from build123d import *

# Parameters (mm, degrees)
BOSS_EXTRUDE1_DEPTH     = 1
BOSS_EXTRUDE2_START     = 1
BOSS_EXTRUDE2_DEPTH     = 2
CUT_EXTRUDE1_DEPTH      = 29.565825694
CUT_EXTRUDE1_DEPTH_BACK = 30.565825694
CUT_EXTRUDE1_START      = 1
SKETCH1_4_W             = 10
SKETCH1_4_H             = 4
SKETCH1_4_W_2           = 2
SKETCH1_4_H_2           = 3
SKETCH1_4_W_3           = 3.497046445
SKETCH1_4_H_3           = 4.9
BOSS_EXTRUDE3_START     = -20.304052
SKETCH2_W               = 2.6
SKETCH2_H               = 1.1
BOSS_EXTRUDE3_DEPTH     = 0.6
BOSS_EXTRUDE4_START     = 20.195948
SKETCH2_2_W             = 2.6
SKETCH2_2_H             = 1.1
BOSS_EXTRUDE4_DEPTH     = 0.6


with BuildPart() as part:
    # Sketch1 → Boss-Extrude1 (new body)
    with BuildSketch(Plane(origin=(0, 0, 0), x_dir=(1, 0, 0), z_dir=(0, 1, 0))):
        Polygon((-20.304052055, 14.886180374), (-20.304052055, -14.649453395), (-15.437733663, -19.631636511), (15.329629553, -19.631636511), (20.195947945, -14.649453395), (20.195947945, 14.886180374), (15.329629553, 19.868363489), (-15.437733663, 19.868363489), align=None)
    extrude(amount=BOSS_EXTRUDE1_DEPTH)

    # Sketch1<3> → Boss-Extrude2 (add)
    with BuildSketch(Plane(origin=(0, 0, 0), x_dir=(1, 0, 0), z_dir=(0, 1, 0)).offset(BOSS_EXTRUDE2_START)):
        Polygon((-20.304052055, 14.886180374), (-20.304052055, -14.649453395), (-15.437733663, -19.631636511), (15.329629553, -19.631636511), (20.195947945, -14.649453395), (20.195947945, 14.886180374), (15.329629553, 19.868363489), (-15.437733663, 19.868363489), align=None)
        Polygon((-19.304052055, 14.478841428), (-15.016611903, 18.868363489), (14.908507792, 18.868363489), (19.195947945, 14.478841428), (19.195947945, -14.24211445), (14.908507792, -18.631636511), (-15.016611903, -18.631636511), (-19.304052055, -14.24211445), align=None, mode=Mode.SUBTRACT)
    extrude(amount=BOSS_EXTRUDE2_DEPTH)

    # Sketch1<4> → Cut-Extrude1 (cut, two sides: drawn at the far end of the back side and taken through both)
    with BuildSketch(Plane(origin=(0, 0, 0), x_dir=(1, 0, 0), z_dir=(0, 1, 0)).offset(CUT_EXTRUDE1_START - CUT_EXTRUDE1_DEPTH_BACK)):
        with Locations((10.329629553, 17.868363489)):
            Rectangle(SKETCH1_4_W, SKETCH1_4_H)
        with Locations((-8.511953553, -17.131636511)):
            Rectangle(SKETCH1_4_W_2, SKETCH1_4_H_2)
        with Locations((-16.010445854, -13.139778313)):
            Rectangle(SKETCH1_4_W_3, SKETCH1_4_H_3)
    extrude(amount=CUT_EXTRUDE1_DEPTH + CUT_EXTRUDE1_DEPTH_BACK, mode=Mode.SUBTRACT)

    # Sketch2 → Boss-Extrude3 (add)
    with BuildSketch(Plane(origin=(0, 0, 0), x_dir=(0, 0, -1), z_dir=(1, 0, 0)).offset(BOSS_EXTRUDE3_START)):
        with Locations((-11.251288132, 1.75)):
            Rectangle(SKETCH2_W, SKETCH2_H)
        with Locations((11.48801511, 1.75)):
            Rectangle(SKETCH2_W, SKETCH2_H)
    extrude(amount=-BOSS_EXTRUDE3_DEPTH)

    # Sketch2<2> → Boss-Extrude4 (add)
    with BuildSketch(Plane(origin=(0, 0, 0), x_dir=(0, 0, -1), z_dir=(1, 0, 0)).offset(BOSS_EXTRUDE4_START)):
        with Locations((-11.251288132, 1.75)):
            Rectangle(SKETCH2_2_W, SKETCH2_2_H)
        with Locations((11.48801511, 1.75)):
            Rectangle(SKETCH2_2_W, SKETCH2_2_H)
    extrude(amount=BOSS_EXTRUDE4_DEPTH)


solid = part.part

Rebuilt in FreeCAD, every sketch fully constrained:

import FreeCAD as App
import Part
import Sketcher
from FreeCAD import Vector

doc = App.newDocument("Part")
body = doc.addObject("PartDesign::Body", "Body")

sketch1 = doc.addObject("Sketcher::SketchObject", "Sketch")
body.addObject(sketch1)
sketch1.AttachmentSupport = (doc.XZ_Plane, [""])
sketch1.MapMode = "FlatFace"
sketch1.addGeometry(Part.LineSegment(Vector(-20, -15, 0), Vector(-20, 15, 0)), False)
sketch1.addGeometry(Part.LineSegment(Vector(-20, 15, 0), Vector(-15, 20, 0)), False)
sketch1.addGeometry(Part.LineSegment(Vector(-15, 20, 0), Vector(15, 20, 0)), False)
sketch1.addGeometry(Part.LineSegment(Vector(15, 20, 0), Vector(20, 15, 0)), False)
sketch1.addGeometry(Part.LineSegment(Vector(20, 15, 0), Vector(20, -15, 0)), False)
sketch1.addGeometry(Part.LineSegment(Vector(20, -15, 0), Vector(15, -20, 0)), False)
sketch1.addGeometry(Part.LineSegment(Vector(15, -20, 0), Vector(-15, -20, 0)), False)
sketch1.addGeometry(Part.LineSegment(Vector(-15, -20, 0), Vector(-20, -15, 0)), False)
sketch1.addConstraint(Sketcher.Constraint("Coincident", 0, 2, 1, 1))
sketch1.addConstraint(Sketcher.Constraint("Coincident", 1, 2, 2, 1))
sketch1.addConstraint(Sketcher.Constraint("Coincident", 2, 2, 3, 1))
sketch1.addConstraint(Sketcher.Constraint("Coincident", 3, 2, 4, 1))
sketch1.addConstraint(Sketcher.Constraint("Coincident", 4, 2, 5, 1))
sketch1.addConstraint(Sketcher.Constraint("Coincident", 5, 2, 6, 1))
sketch1.addConstraint(Sketcher.Constraint("Coincident", 6, 2, 7, 1))
sketch1.addConstraint(Sketcher.Constraint("Coincident", 7, 2, 0, 1))
sketch1.addConstraint(Sketcher.Constraint("Vertical", 0))
sketch1.addConstraint(Sketcher.Constraint("Horizontal", 2))
sketch1.addConstraint(Sketcher.Constraint("Vertical", 4))
sketch1.addConstraint(Sketcher.Constraint("Horizontal", 6))
sketch1.addConstraint(Sketcher.Constraint("Parallel", 1, 5))
sketch1.addConstraint(Sketcher.Constraint("Parallel", 3, 7))
sketch1.addConstraint(Sketcher.Constraint("Horizontal", 0, 2, 3, 2))
sketch1.addConstraint(Sketcher.Constraint("Horizontal", 4, 2, 7, 2))
sketch1.addConstraint(Sketcher.Constraint("Vertical", 2, 2, 5, 2))
sketch1.addConstraint(Sketcher.Constraint("Vertical", 1, 2, 6, 2))
sketch1.addConstraint(Sketcher.Constraint("DistanceX", 0, 2, 3, 2, 40.5))
sketch1.addConstraint(Sketcher.Constraint("DistanceY", 5, 2, 2, 2, 39.5))
sketch1.addConstraint(Sketcher.Constraint("DistanceX", 2, 1, 2, 2, 30.767363))
sketch1.addConstraint(Sketcher.Constraint("DistanceY", 0, 1, 0, 2, 29.535634))
sketch1.addConstraint(Sketcher.Constraint("DistanceX", -1, 1, 2, 2, 15.32963))
sketch1.addConstraint(Sketcher.Constraint("DistanceY", 4, 2, -1, 1, 14.88618))
pad1 = doc.addObject("PartDesign::Pad", "Pad")
body.addObject(pad1)
pad1.Profile = sketch1
pad1.Length = 1
pad1.Reversed = True

sketch2 = doc.addObject("Sketcher::SketchObject", "Sketch001")
body.addObject(sketch2)
sketch2.AttachmentSupport = (doc.XZ_Plane, [""])
sketch2.MapMode = "FlatFace"
sketch2.AttachmentOffset = App.Placement(Vector(0, 0, -1), App.Rotation())
sketch2.addGeometry(Part.LineSegment(Vector(-20, -15, 0), Vector(-20, 15, 0)), False)
sketch2.addGeometry(Part.LineSegment(Vector(-20, 15, 0), Vector(-15, 20, 0)), False)
sketch2.addGeometry(Part.LineSegment(Vector(-15, 20, 0), Vector(15, 20, 0)), False)
sketch2.addGeometry(Part.LineSegment(Vector(15, 20, 0), Vector(20, 15, 0)), False)
sketch2.addGeometry(Part.LineSegment(Vector(20, 15, 0), Vector(20, -15, 0)), False)
sketch2.addGeometry(Part.LineSegment(Vector(20, -15, 0), Vector(15, -20, 0)), False)
sketch2.addGeometry(Part.LineSegment(Vector(15, -20, 0), Vector(-15, -20, 0)), False)
sketch2.addGeometry(Part.LineSegment(Vector(-15, -20, 0), Vector(-20, -15, 0)), False)
sketch2.addGeometry(Part.LineSegment(Vector(-19, 14, 0), Vector(-19, -14, 0)), False)
sketch2.addGeometry(Part.LineSegment(Vector(-19, -14, 0), Vector(-15, -19, 0)), False)
sketch2.addGeometry(Part.LineSegment(Vector(-15, -19, 0), Vector(15, -19, 0)), False)
sketch2.addGeometry(Part.LineSegment(Vector(15, -19, 0), Vector(19, -14, 0)), False)
sketch2.addGeometry(Part.LineSegment(Vector(19, -14, 0), Vector(19, 14, 0)), False)
sketch2.addGeometry(Part.LineSegment(Vector(19, 14, 0), Vector(15, 19, 0)), False)
sketch2.addGeometry(Part.LineSegment(Vector(15, 19, 0), Vector(-15, 19, 0)), False)
sketch2.addGeometry(Part.LineSegment(Vector(-15, 19, 0), Vector(-19, 14, 0)), False)
sketch2.addConstraint(Sketcher.Constraint("Coincident", 0, 2, 1, 1))
sketch2.addConstraint(Sketcher.Constraint("Coincident", 1, 2, 2, 1))
sketch2.addConstraint(Sketcher.Constraint("Coincident", 2, 2, 3, 1))
sketch2.addConstraint(Sketcher.Constraint("Coincident", 3, 2, 4, 1))
sketch2.addConstraint(Sketcher.Constraint("Coincident", 4, 2, 5, 1))
sketch2.addConstraint(Sketcher.Constraint("Coincident", 5, 2, 6, 1))
sketch2.addConstraint(Sketcher.Constraint("Coincident", 6, 2, 7, 1))
sketch2.addConstraint(Sketcher.Constraint("Coincident", 7, 2, 0, 1))
sketch2.addConstraint(Sketcher.Constraint("Coincident", 8, 2, 9, 1))
sketch2.addConstraint(Sketcher.Constraint("Coincident", 9, 2, 10, 1))
sketch2.addConstraint(Sketcher.Constraint("Coincident", 10, 2, 11, 1))
sketch2.addConstraint(Sketcher.Constraint("Coincident", 11, 2, 12, 1))
sketch2.addConstraint(Sketcher.Constraint("Coincident", 12, 2, 13, 1))
sketch2.addConstraint(Sketcher.Constraint("Coincident", 13, 2, 14, 1))
sketch2.addConstraint(Sketcher.Constraint("Coincident", 14, 2, 15, 1))
sketch2.addConstraint(Sketcher.Constraint("Coincident", 15, 2, 8, 1))
sketch2.addConstraint(Sketcher.Constraint("Vertical", 0))
sketch2.addConstraint(Sketcher.Constraint("Horizontal", 2))
sketch2.addConstraint(Sketcher.Constraint("Vertical", 4))
sketch2.addConstraint(Sketcher.Constraint("Horizontal", 6))
sketch2.addConstraint(Sketcher.Constraint("Vertical", 8))
sketch2.addConstraint(Sketcher.Constraint("Horizontal", 10))
sketch2.addConstraint(Sketcher.Constraint("Vertical", 12))
sketch2.addConstraint(Sketcher.Constraint("Horizontal", 14))
sketch2.addConstraint(Sketcher.Constraint("Parallel", 1, 5))
sketch2.addConstraint(Sketcher.Constraint("Parallel", 3, 7))
sketch2.addConstraint(Sketcher.Constraint("Parallel", 7, 9))
sketch2.addConstraint(Sketcher.Constraint("Parallel", 5, 11))
sketch2.addConstraint(Sketcher.Constraint("Parallel", 9, 13))
sketch2.addConstraint(Sketcher.Constraint("Parallel", 11, 15))
sketch2.addConstraint(Sketcher.Constraint("Horizontal", 0, 2, 3, 2))
sketch2.addConstraint(Sketcher.Constraint("Horizontal", 4, 2, 7, 2))
sketch2.addConstraint(Sketcher.Constraint("Horizontal", 8, 2, 11, 2))
sketch2.addConstraint(Sketcher.Constraint("Horizontal", 12, 2, 15, 2))
sketch2.addConstraint(Sketcher.Constraint("Vertical", 2, 2, 5, 2))
sketch2.addConstraint(Sketcher.Constraint("Vertical", 1, 2, 6, 2))
sketch2.addConstraint(Sketcher.Constraint("Vertical", 10, 2, 13, 2))
sketch2.addConstraint(Sketcher.Constraint("DistanceX", 7, 2, 8, 2, 1.0))
sketch2.addConstraint(Sketcher.Constraint("DistanceY", 6, 2, 9, 2, 1.0))
sketch2.addConstraint(Sketcher.Constraint("DistanceX", 11, 2, 4, 2, 1.0))
sketch2.addConstraint(Sketcher.Constraint("DistanceY", 13, 2, 2, 2, 1.0))
sketch2.addConstraint(Sketcher.Constraint("DistanceX", 0, 2, 3, 2, 40.5))
sketch2.addConstraint(Sketcher.Constraint("DistanceY", 5, 2, 2, 2, 39.5))
sketch2.addConstraint(Sketcher.Constraint("DistanceX", 10, 1, 10, 2, 29.92512))
sketch2.addConstraint(Sketcher.Constraint("DistanceX", 2, 1, 2, 2, 30.767363))
sketch2.addConstraint(Sketcher.Constraint("DistanceY", 0, 1, 0, 2, 29.535634))
sketch2.addConstraint(Sketcher.Constraint("DistanceX", -1, 1, 2, 2, 15.32963))
sketch2.addConstraint(Sketcher.Constraint("DistanceY", 4, 2, -1, 1, 14.88618))
pad2 = doc.addObject("PartDesign::Pad", "Pad001")
body.addObject(pad2)
pad2.Profile = sketch2
pad2.Length = 2
pad2.Reversed = True

sketch3 = doc.addObject("Sketcher::SketchObject", "Sketch002")
body.addObject(sketch3)
sketch3.AttachmentSupport = (doc.XZ_Plane, [""])
sketch3.MapMode = "FlatFace"
sketch3.AttachmentOffset = App.Placement(Vector(0, 0, -1), App.Rotation())
sketch3.addGeometry(Part.LineSegment(Vector(5.3, -19.9, 0), Vector(5.3, -15.9, 0)), False)
sketch3.addGeometry(Part.LineSegment(Vector(5.3, -15.9, 0), Vector(15.3, -15.9, 0)), False)
sketch3.addGeometry(Part.LineSegment(Vector(15.3, -15.9, 0), Vector(15.3, -19.9, 0)), False)
sketch3.addGeometry(Part.LineSegment(Vector(15.3, -19.9, 0), Vector(5.3, -19.9, 0)), False)
sketch3.addGeometry(Part.LineSegment(Vector(-9.5, 15.6, 0), Vector(-9.5, 18.6, 0)), False)
sketch3.addGeometry(Part.LineSegment(Vector(-9.5, 18.6, 0), Vector(-7.5, 18.6, 0)), False)
sketch3.addGeometry(Part.LineSegment(Vector(-7.5, 18.6, 0), Vector(-7.5, 15.6, 0)), False)
sketch3.addGeometry(Part.LineSegment(Vector(-7.5, 15.6, 0), Vector(-9.5, 15.6, 0)), False)
sketch3.addGeometry(Part.LineSegment(Vector(-17.8, 10.7, 0), Vector(-17.8, 15.6, 0)), False)
sketch3.addGeometry(Part.LineSegment(Vector(-17.8, 15.6, 0), Vector(-14.3, 15.6, 0)), False)
sketch3.addGeometry(Part.LineSegment(Vector(-14.3, 15.6, 0), Vector(-14.3, 10.7, 0)), False)
sketch3.addGeometry(Part.LineSegment(Vector(-14.3, 10.7, 0), Vector(-17.8, 10.7, 0)), False)
sketch3.addConstraint(Sketcher.Constraint("Coincident", 0, 2, 1, 1))
sketch3.addConstraint(Sketcher.Constraint("Coincident", 1, 2, 2, 1))
sketch3.addConstraint(Sketcher.Constraint("Coincident", 2, 2, 3, 1))
sketch3.addConstraint(Sketcher.Constraint("Coincident", 3, 2, 0, 1))
sketch3.addConstraint(Sketcher.Constraint("Coincident", 4, 2, 5, 1))
sketch3.addConstraint(Sketcher.Constraint("Coincident", 5, 2, 6, 1))
sketch3.addConstraint(Sketcher.Constraint("Coincident", 6, 2, 7, 1))
sketch3.addConstraint(Sketcher.Constraint("Coincident", 7, 2, 4, 1))
sketch3.addConstraint(Sketcher.Constraint("Coincident", 8, 2, 9, 1))
sketch3.addConstraint(Sketcher.Constraint("Coincident", 9, 2, 10, 1))
sketch3.addConstraint(Sketcher.Constraint("Coincident", 10, 2, 11, 1))
sketch3.addConstraint(Sketcher.Constraint("Coincident", 11, 2, 8, 1))
sketch3.addConstraint(Sketcher.Constraint("Vertical", 0))
sketch3.addConstraint(Sketcher.Constraint("Horizontal", 1))
sketch3.addConstraint(Sketcher.Constraint("Vertical", 2))
sketch3.addConstraint(Sketcher.Constraint("Horizontal", 3))
sketch3.addConstraint(Sketcher.Constraint("Vertical", 4))
sketch3.addConstraint(Sketcher.Constraint("Horizontal", 5))
sketch3.addConstraint(Sketcher.Constraint("Vertical", 6))
sketch3.addConstraint(Sketcher.Constraint("Horizontal", 7))
sketch3.addConstraint(Sketcher.Constraint("Vertical", 8))
sketch3.addConstraint(Sketcher.Constraint("Horizontal", 9))
sketch3.addConstraint(Sketcher.Constraint("Vertical", 10))
sketch3.addConstraint(Sketcher.Constraint("Horizontal", 11))
sketch3.addConstraint(Sketcher.Constraint("DistanceX", 1, 1, 1, 2, 10.0))
sketch3.addConstraint(Sketcher.Constraint("DistanceX", 5, 1, 5, 2, 2.0))
sketch3.addConstraint(Sketcher.Constraint("DistanceY", 0, 1, 0, 2, 4.0))
sketch3.addConstraint(Sketcher.Constraint("DistanceY", 4, 1, 4, 2, 3.0))
sketch3.addConstraint(Sketcher.Constraint("DistanceY", 8, 1, 8, 2, 4.9))
sketch3.addConstraint(Sketcher.Constraint("DistanceY", 0, 2, 4, 2, 34.5))
sketch3.addConstraint(Sketcher.Constraint("DistanceX", 8, 2, 0, 2, 23.088599))
sketch3.addConstraint(Sketcher.Constraint("DistanceX", 9, 1, 9, 2, 3.497046))
sketch3.addConstraint(Sketcher.Constraint("DistanceX", -1, 1, 0, 2, 5.32963))
sketch3.addConstraint(Sketcher.Constraint("DistanceY", -1, 1, 8, 2, 15.589778))
sketch3.addConstraint(Sketcher.Constraint("DistanceY", 8, 2, 7, 2, 0.041858))
sketch3.addConstraint(Sketcher.Constraint("DistanceX", 9, 2, 7, 2, 4.749969))
pocket1 = doc.addObject("PartDesign::Pocket", "Pocket")
body.addObject(pocket1)
pocket1.Profile = sketch3
pocket1.Type = "ThroughAll"
pocket1.Midplane = True

sketch4 = doc.addObject("Sketcher::SketchObject", "Sketch003")
body.addObject(sketch4)
sketch4.AttachmentSupport = (doc.YZ_Plane, [""])
sketch4.MapMode = "FlatFace"
sketch4.AttachmentOffset = App.Placement(Vector(0, 0, -20.304052), App.Rotation())
sketch4.addGeometry(Part.LineSegment(Vector(2.3, 12.6, 0), Vector(1.2, 12.6, 0)), False)
sketch4.addGeometry(Part.LineSegment(Vector(1.2, 12.6, 0), Vector(1.2, 10, 0)), False)
sketch4.addGeometry(Part.LineSegment(Vector(1.2, 10, 0), Vector(2.3, 10, 0)), False)
sketch4.addGeometry(Part.LineSegment(Vector(2.3, 10, 0), Vector(2.3, 12.6, 0)), False)
sketch4.addGeometry(Part.LineSegment(Vector(2.3, -10.2, 0), Vector(1.2, -10.2, 0)), False)
sketch4.addGeometry(Part.LineSegment(Vector(1.2, -10.2, 0), Vector(1.2, -12.8, 0)), False)
sketch4.addGeometry(Part.LineSegment(Vector(1.2, -12.8, 0), Vector(2.3, -12.8, 0)), False)
sketch4.addGeometry(Part.LineSegment(Vector(2.3, -12.8, 0), Vector(2.3, -10.2, 0)), False)
sketch4.addConstraint(Sketcher.Constraint("Coincident", 0, 2, 1, 1))
sketch4.addConstraint(Sketcher.Constraint("Coincident", 1, 2, 2, 1))
sketch4.addConstraint(Sketcher.Constraint("Coincident", 2, 2, 3, 1))
sketch4.addConstraint(Sketcher.Constraint("Coincident", 3, 2, 0, 1))
sketch4.addConstraint(Sketcher.Constraint("Coincident", 4, 2, 5, 1))
sketch4.addConstraint(Sketcher.Constraint("Coincident", 5, 2, 6, 1))
sketch4.addConstraint(Sketcher.Constraint("Coincident", 6, 2, 7, 1))
sketch4.addConstraint(Sketcher.Constraint("Coincident", 7, 2, 4, 1))
sketch4.addConstraint(Sketcher.Constraint("Horizontal", 0))
sketch4.addConstraint(Sketcher.Constraint("Vertical", 1))
sketch4.addConstraint(Sketcher.Constraint("Horizontal", 2))
sketch4.addConstraint(Sketcher.Constraint("Vertical", 3))
sketch4.addConstraint(Sketcher.Constraint("Horizontal", 4))
sketch4.addConstraint(Sketcher.Constraint("Vertical", 5))
sketch4.addConstraint(Sketcher.Constraint("Horizontal", 6))
sketch4.addConstraint(Sketcher.Constraint("Vertical", 7))
sketch4.addConstraint(Sketcher.Constraint("Vertical", 1, 2, 4, 2))
sketch4.addConstraint(Sketcher.Constraint("Vertical", 3, 2, 6, 2))
sketch4.addConstraint(Sketcher.Constraint("Equal", 3, 5))
sketch4.addConstraint(Sketcher.Constraint("DistanceX", 0, 2, 0, 1, 1.1))
sketch4.addConstraint(Sketcher.Constraint("DistanceY", 1, 2, 1, 1, 2.6))
sketch4.addConstraint(Sketcher.Constraint("DistanceX", -1, 1, 0, 2, 1.2))
sketch4.addConstraint(Sketcher.Constraint("DistanceY", -1, 1, 0, 2, 12.551288))
sketch4.addConstraint(Sketcher.Constraint("DistanceY", 4, 2, -1, 1, 10.188015))
pad3 = doc.addObject("PartDesign::Pad", "Pad002")
body.addObject(pad3)
pad3.Profile = sketch4
pad3.Length = 0.6
pad3.Reversed = True

sketch5 = doc.addObject("Sketcher::SketchObject", "Sketch004")
body.addObject(sketch5)
sketch5.AttachmentSupport = (doc.YZ_Plane, [""])
sketch5.MapMode = "FlatFace"
sketch5.AttachmentOffset = App.Placement(Vector(0, 0, 20.195948), App.Rotation())
sketch5.addGeometry(Part.LineSegment(Vector(2.3, 12.6, 0), Vector(1.2, 12.6, 0)), False)
sketch5.addGeometry(Part.LineSegment(Vector(1.2, 12.6, 0), Vector(1.2, 10, 0)), False)
sketch5.addGeometry(Part.LineSegment(Vector(1.2, 10, 0), Vector(2.3, 10, 0)), False)
sketch5.addGeometry(Part.LineSegment(Vector(2.3, 10, 0), Vector(2.3, 12.6, 0)), False)
sketch5.addGeometry(Part.LineSegment(Vector(2.3, -10.2, 0), Vector(1.2, -10.2, 0)), False)
sketch5.addGeometry(Part.LineSegment(Vector(1.2, -10.2, 0), Vector(1.2, -12.8, 0)), False)
sketch5.addGeometry(Part.LineSegment(Vector(1.2, -12.8, 0), Vector(2.3, -12.8, 0)), False)
sketch5.addGeometry(Part.LineSegment(Vector(2.3, -12.8, 0), Vector(2.3, -10.2, 0)), False)
sketch5.addConstraint(Sketcher.Constraint("Coincident", 0, 2, 1, 1))
sketch5.addConstraint(Sketcher.Constraint("Coincident", 1, 2, 2, 1))
sketch5.addConstraint(Sketcher.Constraint("Coincident", 2, 2, 3, 1))
sketch5.addConstraint(Sketcher.Constraint("Coincident", 3, 2, 0, 1))
sketch5.addConstraint(Sketcher.Constraint("Coincident", 4, 2, 5, 1))
sketch5.addConstraint(Sketcher.Constraint("Coincident", 5, 2, 6, 1))
sketch5.addConstraint(Sketcher.Constraint("Coincident", 6, 2, 7, 1))
sketch5.addConstraint(Sketcher.Constraint("Coincident", 7, 2, 4, 1))
sketch5.addConstraint(Sketcher.Constraint("Horizontal", 0))
sketch5.addConstraint(Sketcher.Constraint("Vertical", 1))
sketch5.addConstraint(Sketcher.Constraint("Horizontal", 2))
sketch5.addConstraint(Sketcher.Constraint("Vertical", 3))
sketch5.addConstraint(Sketcher.Constraint("Horizontal", 4))
sketch5.addConstraint(Sketcher.Constraint("Vertical", 5))
sketch5.addConstraint(Sketcher.Constraint("Horizontal", 6))
sketch5.addConstraint(Sketcher.Constraint("Vertical", 7))
sketch5.addConstraint(Sketcher.Constraint("Vertical", 1, 2, 4, 2))
sketch5.addConstraint(Sketcher.Constraint("Vertical", 3, 2, 6, 2))
sketch5.addConstraint(Sketcher.Constraint("Equal", 3, 5))
sketch5.addConstraint(Sketcher.Constraint("DistanceX", 0, 2, 0, 1, 1.1))
sketch5.addConstraint(Sketcher.Constraint("DistanceY", 1, 2, 1, 1, 2.6))
sketch5.addConstraint(Sketcher.Constraint("DistanceX", -1, 1, 0, 2, 1.2))
sketch5.addConstraint(Sketcher.Constraint("DistanceY", -1, 1, 0, 2, 12.551288))
sketch5.addConstraint(Sketcher.Constraint("DistanceY", 4, 2, -1, 1, 10.188015))
pad4 = doc.addObject("PartDesign::Pad", "Pad003")
body.addObject(pad4)
pad4.Profile = sketch5
pad4.Length = 0.6

doc.recompute()
